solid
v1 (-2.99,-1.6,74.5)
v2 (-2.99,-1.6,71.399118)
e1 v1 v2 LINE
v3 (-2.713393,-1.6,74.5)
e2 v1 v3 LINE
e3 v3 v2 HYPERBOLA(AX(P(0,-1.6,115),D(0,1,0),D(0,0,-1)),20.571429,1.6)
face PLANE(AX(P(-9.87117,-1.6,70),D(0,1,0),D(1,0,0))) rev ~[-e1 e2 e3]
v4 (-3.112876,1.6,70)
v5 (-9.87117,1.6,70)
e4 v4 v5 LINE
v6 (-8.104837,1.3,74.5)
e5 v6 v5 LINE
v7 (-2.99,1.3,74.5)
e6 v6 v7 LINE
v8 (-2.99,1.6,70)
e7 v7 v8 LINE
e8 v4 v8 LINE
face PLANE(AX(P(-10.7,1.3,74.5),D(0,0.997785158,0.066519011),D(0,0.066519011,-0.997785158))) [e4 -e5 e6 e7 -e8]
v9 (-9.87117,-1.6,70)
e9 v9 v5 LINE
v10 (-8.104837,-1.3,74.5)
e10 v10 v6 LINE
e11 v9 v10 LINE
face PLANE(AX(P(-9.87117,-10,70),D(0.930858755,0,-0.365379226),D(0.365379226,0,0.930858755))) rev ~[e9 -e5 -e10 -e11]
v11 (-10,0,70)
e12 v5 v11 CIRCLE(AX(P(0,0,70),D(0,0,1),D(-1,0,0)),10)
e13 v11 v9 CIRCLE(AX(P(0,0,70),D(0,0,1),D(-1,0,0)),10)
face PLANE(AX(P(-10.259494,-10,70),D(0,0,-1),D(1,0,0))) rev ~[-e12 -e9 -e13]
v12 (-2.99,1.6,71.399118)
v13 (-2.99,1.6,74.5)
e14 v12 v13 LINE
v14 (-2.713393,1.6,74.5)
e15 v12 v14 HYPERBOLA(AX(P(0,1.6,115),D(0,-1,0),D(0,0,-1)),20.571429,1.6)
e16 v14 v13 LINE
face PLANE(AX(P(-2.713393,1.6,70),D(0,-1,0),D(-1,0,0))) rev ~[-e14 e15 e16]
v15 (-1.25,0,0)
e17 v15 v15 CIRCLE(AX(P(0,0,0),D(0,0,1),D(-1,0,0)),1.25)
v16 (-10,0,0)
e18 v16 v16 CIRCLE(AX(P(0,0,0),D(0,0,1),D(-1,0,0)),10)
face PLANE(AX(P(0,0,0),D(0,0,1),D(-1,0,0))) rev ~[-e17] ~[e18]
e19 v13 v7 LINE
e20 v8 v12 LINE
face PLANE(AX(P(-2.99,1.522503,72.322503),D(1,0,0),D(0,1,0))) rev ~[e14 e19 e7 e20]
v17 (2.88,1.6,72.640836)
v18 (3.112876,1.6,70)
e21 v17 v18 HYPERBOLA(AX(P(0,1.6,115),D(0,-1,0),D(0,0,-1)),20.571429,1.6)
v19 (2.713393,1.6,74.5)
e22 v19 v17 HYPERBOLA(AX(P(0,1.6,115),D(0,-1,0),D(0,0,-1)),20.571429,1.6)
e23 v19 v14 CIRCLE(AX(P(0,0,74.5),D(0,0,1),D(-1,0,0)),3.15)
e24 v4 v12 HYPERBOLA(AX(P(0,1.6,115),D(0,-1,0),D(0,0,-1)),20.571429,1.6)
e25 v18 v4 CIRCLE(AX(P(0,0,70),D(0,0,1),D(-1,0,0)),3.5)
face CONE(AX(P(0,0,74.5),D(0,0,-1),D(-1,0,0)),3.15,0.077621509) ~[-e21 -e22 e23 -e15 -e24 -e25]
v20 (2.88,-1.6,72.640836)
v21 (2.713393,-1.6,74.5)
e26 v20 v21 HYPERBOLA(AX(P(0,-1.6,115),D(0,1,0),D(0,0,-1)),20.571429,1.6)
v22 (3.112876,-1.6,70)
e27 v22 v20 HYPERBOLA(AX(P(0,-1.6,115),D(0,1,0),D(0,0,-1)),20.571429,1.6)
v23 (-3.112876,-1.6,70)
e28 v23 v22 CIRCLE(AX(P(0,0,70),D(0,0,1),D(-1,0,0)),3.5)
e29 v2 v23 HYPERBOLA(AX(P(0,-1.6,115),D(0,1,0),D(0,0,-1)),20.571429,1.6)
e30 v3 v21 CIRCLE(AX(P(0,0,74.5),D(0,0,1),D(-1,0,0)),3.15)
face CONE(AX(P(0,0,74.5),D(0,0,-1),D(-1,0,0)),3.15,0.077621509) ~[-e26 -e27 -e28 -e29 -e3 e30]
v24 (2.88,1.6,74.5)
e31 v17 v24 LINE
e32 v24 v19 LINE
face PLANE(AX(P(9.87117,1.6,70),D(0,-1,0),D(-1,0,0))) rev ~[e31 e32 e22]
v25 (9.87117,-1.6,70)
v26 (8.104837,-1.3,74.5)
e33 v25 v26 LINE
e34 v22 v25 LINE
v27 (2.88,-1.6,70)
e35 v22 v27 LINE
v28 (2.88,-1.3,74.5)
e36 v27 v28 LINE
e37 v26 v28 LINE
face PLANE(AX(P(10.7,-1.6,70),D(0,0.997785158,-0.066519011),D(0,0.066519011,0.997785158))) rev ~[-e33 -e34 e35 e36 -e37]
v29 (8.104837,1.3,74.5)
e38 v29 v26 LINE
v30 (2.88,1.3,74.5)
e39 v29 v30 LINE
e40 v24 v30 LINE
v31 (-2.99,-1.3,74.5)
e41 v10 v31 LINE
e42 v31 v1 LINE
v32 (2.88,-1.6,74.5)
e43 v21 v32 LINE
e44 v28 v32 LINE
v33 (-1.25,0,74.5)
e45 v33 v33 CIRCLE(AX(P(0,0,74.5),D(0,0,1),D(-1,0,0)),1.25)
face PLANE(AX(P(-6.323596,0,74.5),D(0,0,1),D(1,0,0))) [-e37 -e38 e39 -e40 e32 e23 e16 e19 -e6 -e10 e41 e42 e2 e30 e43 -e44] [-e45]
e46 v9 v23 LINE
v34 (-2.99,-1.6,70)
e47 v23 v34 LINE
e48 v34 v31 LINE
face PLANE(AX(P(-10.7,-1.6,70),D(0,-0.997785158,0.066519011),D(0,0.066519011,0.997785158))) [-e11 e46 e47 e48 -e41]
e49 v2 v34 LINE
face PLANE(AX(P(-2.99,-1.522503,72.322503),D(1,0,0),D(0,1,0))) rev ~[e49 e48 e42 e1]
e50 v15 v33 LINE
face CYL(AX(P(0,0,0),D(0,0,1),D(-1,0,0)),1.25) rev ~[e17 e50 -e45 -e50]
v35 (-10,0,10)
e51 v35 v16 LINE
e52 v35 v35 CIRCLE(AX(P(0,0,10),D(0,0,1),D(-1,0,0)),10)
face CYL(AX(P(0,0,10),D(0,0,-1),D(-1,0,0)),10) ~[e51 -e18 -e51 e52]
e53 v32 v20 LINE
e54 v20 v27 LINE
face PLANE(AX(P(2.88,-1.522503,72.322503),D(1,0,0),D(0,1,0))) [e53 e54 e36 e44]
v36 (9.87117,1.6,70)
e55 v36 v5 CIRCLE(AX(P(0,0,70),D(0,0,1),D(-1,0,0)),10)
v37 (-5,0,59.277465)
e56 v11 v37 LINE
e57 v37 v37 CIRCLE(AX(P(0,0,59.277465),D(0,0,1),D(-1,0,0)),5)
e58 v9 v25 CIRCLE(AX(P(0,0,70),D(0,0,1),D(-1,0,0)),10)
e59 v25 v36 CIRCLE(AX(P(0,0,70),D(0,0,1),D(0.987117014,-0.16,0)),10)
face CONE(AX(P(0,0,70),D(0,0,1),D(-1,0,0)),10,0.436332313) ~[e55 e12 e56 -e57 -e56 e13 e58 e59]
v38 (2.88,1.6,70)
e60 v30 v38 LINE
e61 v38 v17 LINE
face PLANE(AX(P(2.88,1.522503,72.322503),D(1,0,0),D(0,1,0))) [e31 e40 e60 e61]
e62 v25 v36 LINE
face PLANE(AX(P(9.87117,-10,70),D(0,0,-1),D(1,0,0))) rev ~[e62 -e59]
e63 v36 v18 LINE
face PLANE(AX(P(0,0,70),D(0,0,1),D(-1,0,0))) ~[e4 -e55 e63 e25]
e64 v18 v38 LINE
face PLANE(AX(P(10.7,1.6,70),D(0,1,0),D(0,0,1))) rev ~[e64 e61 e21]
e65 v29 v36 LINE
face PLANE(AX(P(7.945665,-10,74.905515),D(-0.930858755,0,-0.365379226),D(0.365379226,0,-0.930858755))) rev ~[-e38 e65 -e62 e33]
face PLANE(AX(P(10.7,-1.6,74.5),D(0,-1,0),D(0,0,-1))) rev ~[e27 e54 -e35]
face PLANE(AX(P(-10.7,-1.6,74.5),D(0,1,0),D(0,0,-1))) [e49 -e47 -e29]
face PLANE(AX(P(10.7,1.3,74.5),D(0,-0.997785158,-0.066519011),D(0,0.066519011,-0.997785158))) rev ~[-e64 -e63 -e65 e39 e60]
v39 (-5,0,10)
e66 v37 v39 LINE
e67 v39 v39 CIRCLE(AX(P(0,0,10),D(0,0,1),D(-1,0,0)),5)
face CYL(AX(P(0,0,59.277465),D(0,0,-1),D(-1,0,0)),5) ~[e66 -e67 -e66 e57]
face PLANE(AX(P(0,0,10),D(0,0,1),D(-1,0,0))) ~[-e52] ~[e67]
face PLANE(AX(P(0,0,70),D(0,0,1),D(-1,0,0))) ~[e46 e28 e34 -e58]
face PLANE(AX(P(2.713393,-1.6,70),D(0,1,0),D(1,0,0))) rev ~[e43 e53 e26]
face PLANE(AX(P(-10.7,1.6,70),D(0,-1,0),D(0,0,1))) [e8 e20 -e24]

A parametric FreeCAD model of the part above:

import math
import FreeCAD as App
import Part
import Sketcher

V = App.Vector
Q = App.Units.Quantity

doc = App.newDocument("Part")
body = doc.addObject("PartDesign::Body", "Body")

# Sketch on XZ plane
sketch1 = body.newObject("Sketcher::SketchObject", "Sketch")
sketch1.AttachmentSupport = (doc.getObject("XZ_Plane"), [""])
sketch1.MapMode = "FlatFace"
sketch1.addGeometry([
    Part.LineSegment(V(-10, 0, 0), V(-1.2, 0, 0)),  # 0
    Part.LineSegment(V(-1.2, 0, 0), V(-1.2, 74.5, 0)),  # 1
    Part.LineSegment(V(-1.2, 74.5, 0), V(-3.1, 74.5, 0)),  # 2
    Part.LineSegment(V(-3.1, 74.5, 0), V(-3.5, 70, 0)),  # 3
    Part.LineSegment(V(-3.5, 70, 0), V(-10, 70, 0)),  # 4
    Part.LineSegment(V(-10, 70, 0), V(-5, 59.3, 0)),  # 5
    Part.LineSegment(V(-5, 59.3, 0), V(-5, 10, 0)),  # 6
    Part.LineSegment(V(-5, 10, 0), V(-10, 10, 0)),  # 7
    Part.LineSegment(V(-10, 10, 0), V(-10, 0, 0)),  # 8
], False)
sketch1.addConstraint([
    Sketcher.Constraint("Coincident", 0, 2, 1, 1),
    Sketcher.Constraint("Coincident", 1, 2, 2, 1),
    Sketcher.Constraint("Coincident", 2, 2, 3, 1),
    Sketcher.Constraint("Coincident", 3, 2, 4, 1),
    Sketcher.Constraint("Coincident", 4, 2, 5, 1),
    Sketcher.Constraint("Coincident", 5, 2, 6, 1),
    Sketcher.Constraint("Coincident", 6, 2, 7, 1),
    Sketcher.Constraint("Coincident", 7, 2, 8, 1),
    Sketcher.Constraint("Coincident", 8, 2, 0, 1),
    Sketcher.Constraint("Horizontal", 0),
    Sketcher.Constraint("Vertical", 1),
    Sketcher.Constraint("Horizontal", 2),
    Sketcher.Constraint("Horizontal", 4),
    Sketcher.Constraint("Vertical", 6),
    Sketcher.Constraint("Horizontal", 7),
    Sketcher.Constraint("Vertical", 8),
    Sketcher.Constraint("PointOnObject", 0, 2, -1),
    Sketcher.Constraint("Vertical", 4, 2, 7, 2),
    Sketcher.Constraint("DistanceX", 7, 2, 7, 1, Q("5 mm")),
    Sketcher.Constraint("DistanceY", 8, 2, 8, 1, Q("10 mm")),
    Sketcher.Constraint("Angle", 5, Q("-65 deg")),
    Sketcher.Constraint("DistanceX", 2, 2, 2, 1, Q("1.9 mm")),
    Sketcher.Constraint("DistanceX", 4, 2, 4, 1, Q("6.5 mm")),
    Sketcher.Constraint("DistanceY", 1, 1, 1, 2, Q("74.5 mm")),
    Sketcher.Constraint("DistanceY", -1, 1, 3, 2, Q("70 mm")),
    Sketcher.Constraint("DistanceX", 4, 2, -1, 1, Q("10 mm")),
    Sketcher.Constraint("DistanceX", 0, 1, 0, 2, Q("8.75 mm")),
])
revolution = body.newObject("PartDesign::Revolution", "Revolution")
revolution.Profile = sketch1
revolution.ReferenceAxis = (sketch1, ["V_Axis"])
revolution.Angle = 360

# Sketch on XY plane
sketch2 = body.newObject("Sketcher::SketchObject", "Sketch001")
sketch2.AttachmentSupport = (doc.getObject("XY_Plane"), [""])
sketch2.MapMode = "FlatFace"
sketch2.AttachmentOffset = App.Placement(V(0, 0, 70), App.Rotation())
sketch2.addGeometry([
    Part.ArcOfCircle(Part.Circle(V(0, 0, 0), V(0, 0, 1), 10), math.radians(170.79), math.radians(189.21)),  # 0
    Part.LineSegment(V(-9.9, -1.6, 0), V(-2.7, -1.6, 0)),  # 1
    Part.ArcOfCircle(Part.Circle(V(0, 0, 0), V(0, 0, 1), 3.1), math.radians(149), math.radians(211)),  # 2
    Part.LineSegment(V(-2.7, 1.6, 0), V(-9.9, 1.6, 0)),  # 3
    Part.LineSegment(V(9.9, 1.6, 0), V(2.7, 1.6, 0)),  # 4
    Part.ArcOfCircle(Part.Circle(V(0, 0, 0), V(0, 0, 1), 3.1), math.radians(-31), math.radians(31)),  # 5
    Part.LineSegment(V(2.7, -1.6, 0), V(9.9, -1.6, 0)),  # 6
    Part.ArcOfCircle(Part.Circle(V(0, 0, 0), V(0, 0, 1), 10), math.radians(-9.21), math.radians(9.21)),  # 7
], False)
sketch2.addConstraint([
    Sketcher.Constraint("Coincident", 0, 2, 1, 1),
    Sketcher.Constraint("Coincident", 1, 2, 2, 2),
    Sketcher.Constraint("Coincident", 2, 1, 3, 1),
    Sketcher.Constraint("Coincident", 3, 2, 0, 1),
    Sketcher.Constraint("Coincident", 4, 2, 5, 2),
    Sketcher.Constraint("Coincident", 5, 1, 6, 1),
    Sketcher.Constraint("Coincident", 6, 2, 7, 1),
    Sketcher.Constraint("Coincident", 7, 2, 4, 1),
    Sketcher.Constraint("Horizontal", 1),
    Sketcher.Constraint("Horizontal", 3),
    Sketcher.Constraint("Horizontal", 4),
    Sketcher.Constraint("Horizontal", 6),
    Sketcher.Constraint("Coincident", 0, 3, -1, 1),
    Sketcher.Constraint("Coincident", 2, 3, -1, 1),
    Sketcher.Constraint("Coincident", 5, 3, -1, 1),
    Sketcher.Constraint("Coincident", 7, 3, -1, 1),
    Sketcher.Constraint("Equal", 2, 5),
    Sketcher.Constraint("Equal", 0, 7),
    Sketcher.Constraint("Horizontal", 3, 2, 4, 2),
    Sketcher.Constraint("Horizontal", 1, 2, 5, 1),
    Sketcher.Constraint("Vertical", 1, 2, 2, 1),
    Sketcher.Constraint("Radius", 0, Q("10 mm")),
    Sketcher.Constraint("Radius", 2, Q("3.15 mm")),
    Sketcher.Constraint("DistanceY", 0, 2, -1, 1, Q("1.6 mm")),
])
pad1 = body.newObject("PartDesign::Pad", "Pad")
pad1.Profile = sketch2
pad1.Length = 4.5

# Sketch on YZ plane
sketch3 = body.newObject("Sketcher::SketchObject", "Sketch002")
sketch3.AttachmentSupport = (doc.getObject("YZ_Plane"), [""])
sketch3.MapMode = "FlatFace"
sketch3.AttachmentOffset = App.Placement(V(0, 0, 10.7), App.Rotation())
sketch3.addGeometry([
    Part.LineSegment(V(-1.6, 70, 0), V(-1.3, 74.5, 0)),  # 0
    Part.LineSegment(V(-1.3, 74.5, 0), V(-1.6, 74.5, 0)),  # 1
    Part.LineSegment(V(-1.6, 74.5, 0), V(-1.6, 70, 0)),  # 2
    Part.LineSegment(V(1.6, 74.5, 0), V(1.3, 74.5, 0)),  # 3
    Part.LineSegment(V(1.3, 74.5, 0), V(1.6, 70, 0)),  # 4
    Part.LineSegment(V(1.6, 70, 0), V(1.6, 74.5, 0)),  # 5
], False)
sketch3.addConstraint([
    Sketcher.Constraint("Coincident", 0, 2, 1, 1),
    Sketcher.Constraint("Coincident", 1, 2, 2, 1),
    Sketcher.Constraint("Coincident", 2, 2, 0, 1),
    Sketcher.Constraint("Coincident", 3, 2, 4, 1),
    Sketcher.Constraint("Coincident", 4, 2, 5, 1),
    Sketcher.Constraint("Coincident", 5, 2, 3, 1),
    Sketcher.Constraint("Horizontal", 1),
    Sketcher.Constraint("Vertical", 2),
    Sketcher.Constraint("Horizontal", 3),
    Sketcher.Constraint("Vertical", 5),
    Sketcher.Constraint("Symmetric", 0, 2, 3, 2, -2),
    Sketcher.Constraint("Symmetric", 2, 2, 4, 2, -2),
    Sketcher.Constraint("DistanceX", 1, 2, 1, 1, Q("0.3 mm")),
    Sketcher.Constraint("DistanceY", 2, 2, 2, 1, Q("4.5 mm")),
    Sketcher.Constraint("DistanceY", -1, 1, 2, 2, Q("70 mm")),
    Sketcher.Constraint("DistanceX", 0, 2, -1, 1, Q("1.3 mm")),
])
pocket1 = body.newObject("PartDesign::Pocket", "Pocket")
pocket1.Profile = sketch3
pocket1.Length = 7.82

# Sketch on YZ plane
sketch4 = body.newObject("Sketcher::SketchObject", "Sketch003")
sketch4.AttachmentSupport = (doc.getObject("YZ_Plane"), [""])
sketch4.MapMode = "FlatFace"
sketch4.AttachmentOffset = App.Placement(V(0, 0, -10.7), App.Rotation())
sketch4.addGeometry([
    Part.LineSegment(V(1.6, 70, 0), V(1.6, 74.5, 0)),  # 0
    Part.LineSegment(V(1.6, 74.5, 0), V(1.3, 74.5, 0)),  # 1
    Part.LineSegment(V(1.3, 74.5, 0), V(1.6, 70, 0)),  # 2
    Part.LineSegment(V(-1.3, 74.5, 0), V(-1.6, 74.5, 0)),  # 3
    Part.LineSegment(V(-1.6, 74.5, 0), V(-1.6, 70, 0)),  # 4
    Part.LineSegment(V(-1.6, 70, 0), V(-1.3, 74.5, 0)),  # 5
], False)
sketch4.addConstraint([
    Sketcher.Constraint("Coincident", 0, 2, 1, 1),
    Sketcher.Constraint("Coincident", 1, 2, 2, 1),
    Sketcher.Constraint("Coincident", 2, 2, 0, 1),
    Sketcher.Constraint("Coincident", 3, 2, 4, 1),
    Sketcher.Constraint("Coincident", 4, 2, 5, 1),
    Sketcher.Constraint("Coincident", 5, 2, 3, 1),
    Sketcher.Constraint("Vertical", 0),
    Sketcher.Constraint("Horizontal", 1),
    Sketcher.Constraint("Horizontal", 3),
    Sketcher.Constraint("Vertical", 4),
    Sketcher.Constraint("Symmetric", 0, 2, 3, 2, -2),
    Sketcher.Constraint("Horizontal", 2, 2, 4, 2),
    Sketcher.Constraint("Equal", 1, 3),
    Sketcher.Constraint("DistanceX", 1, 2, 1, 1, Q("0.3 mm")),
    Sketcher.Constraint("DistanceY", 0, 1, 0, 2, Q("4.5 mm")),
    Sketcher.Constraint("DistanceY", -1, 1, 2, 2, Q("70 mm")),
    Sketcher.Constraint("DistanceX", -1, 1, 0, 2, Q("1.6 mm")),
])
pocket2 = body.newObject("PartDesign::Pocket", "Pocket001")
pocket2.Profile = sketch4
pocket2.Length = 7.71
pocket2.Reversed = True

# Sketch on XZ plane
sketch5 = body.newObject("Sketcher::SketchObject", "Sketch004")
sketch5.AttachmentSupport = (doc.getObject("XZ_Plane"), [""])
sketch5.MapMode = "FlatFace"
sketch5.AttachmentOffset = App.Placement(V(0, 0, 10), App.Rotation())
sketch5.addGeometry([
    Part.LineSegment(V(-10.26, 70, 0), V(-9.87, 70, 0)),  # 0
    Part.LineSegment(V(-9.87, 70, 0), V(-7.95, 74.91, 0)),  # 1
    Part.LineSegment(V(-7.95, 74.91, 0), V(-10.55, 74.91, 0)),  # 2
    Part.LineSegment(V(-10.55, 74.91, 0), V(-10.26, 70, 0)),  # 3
    Part.LineSegment(V(7.95, 74.91, 0), V(9.87, 70, 0)),  # 4
    Part.LineSegment(V(9.87, 70, 0), V(10.26, 70, 0)),  # 5
    Part.LineSegment(V(10.26, 70, 0), V(10.55, 74.91, 0)),  # 6
    Part.LineSegment(V(10.55, 74.91, 0), V(7.95, 74.91, 0)),  # 7
], False)
sketch5.addConstraint([
    Sketcher.Constraint("Coincident", 0, 2, 1, 1),
    Sketcher.Constraint("Coincident", 1, 2, 2, 1),
    Sketcher.Constraint("Coincident", 2, 2, 3, 1),
    Sketcher.Constraint("Coincident", 3, 2, 0, 1),
    Sketcher.Constraint("Coincident", 4, 2, 5, 1),
    Sketcher.Constraint("Coincident", 5, 2, 6, 1),
    Sketcher.Constraint("Coincident", 6, 2, 7, 1),
    Sketcher.Constraint("Coincident", 7, 2, 4, 1),
    Sketcher.Constraint("Horizontal", 0),
    Sketcher.Constraint("Horizontal", 2),
    Sketcher.Constraint("Horizontal", 5),
    Sketcher.Constraint("Horizontal", 7),
    Sketcher.Constraint("Symmetric", 0, 2, 4, 2, -2),
    Sketcher.Constraint("Symmetric", 2, 2, 6, 2, -2),
    Sketcher.Constraint("Equal", 0, 5),
    Sketcher.Constraint("Equal", 2, 7),
    Sketcher.Constraint("DistanceY", -1, 1, 0, 2, Q("70 mm")),
    Sketcher.Constraint("DistanceX", 2, 2, 2, 1, Q("2.6052 mm")),
    Sketcher.Constraint("Distance", 1, Q("5.269881 mm")),
    Sketcher.Constraint("Distance", 3, Q("4.91416 mm")),
    Sketcher.Constraint("DistanceX", 0, 1, 0, 2, Q("0.388324 mm")),
    Sketcher.Constraint("DistanceX", 0, 2, -1, 1, Q("9.87117 mm")),
])
pocket3 = body.newObject("PartDesign::Pocket", "Pocket002")
pocket3.Profile = sketch5
pocket3.Length = 25

doc.recompute()
